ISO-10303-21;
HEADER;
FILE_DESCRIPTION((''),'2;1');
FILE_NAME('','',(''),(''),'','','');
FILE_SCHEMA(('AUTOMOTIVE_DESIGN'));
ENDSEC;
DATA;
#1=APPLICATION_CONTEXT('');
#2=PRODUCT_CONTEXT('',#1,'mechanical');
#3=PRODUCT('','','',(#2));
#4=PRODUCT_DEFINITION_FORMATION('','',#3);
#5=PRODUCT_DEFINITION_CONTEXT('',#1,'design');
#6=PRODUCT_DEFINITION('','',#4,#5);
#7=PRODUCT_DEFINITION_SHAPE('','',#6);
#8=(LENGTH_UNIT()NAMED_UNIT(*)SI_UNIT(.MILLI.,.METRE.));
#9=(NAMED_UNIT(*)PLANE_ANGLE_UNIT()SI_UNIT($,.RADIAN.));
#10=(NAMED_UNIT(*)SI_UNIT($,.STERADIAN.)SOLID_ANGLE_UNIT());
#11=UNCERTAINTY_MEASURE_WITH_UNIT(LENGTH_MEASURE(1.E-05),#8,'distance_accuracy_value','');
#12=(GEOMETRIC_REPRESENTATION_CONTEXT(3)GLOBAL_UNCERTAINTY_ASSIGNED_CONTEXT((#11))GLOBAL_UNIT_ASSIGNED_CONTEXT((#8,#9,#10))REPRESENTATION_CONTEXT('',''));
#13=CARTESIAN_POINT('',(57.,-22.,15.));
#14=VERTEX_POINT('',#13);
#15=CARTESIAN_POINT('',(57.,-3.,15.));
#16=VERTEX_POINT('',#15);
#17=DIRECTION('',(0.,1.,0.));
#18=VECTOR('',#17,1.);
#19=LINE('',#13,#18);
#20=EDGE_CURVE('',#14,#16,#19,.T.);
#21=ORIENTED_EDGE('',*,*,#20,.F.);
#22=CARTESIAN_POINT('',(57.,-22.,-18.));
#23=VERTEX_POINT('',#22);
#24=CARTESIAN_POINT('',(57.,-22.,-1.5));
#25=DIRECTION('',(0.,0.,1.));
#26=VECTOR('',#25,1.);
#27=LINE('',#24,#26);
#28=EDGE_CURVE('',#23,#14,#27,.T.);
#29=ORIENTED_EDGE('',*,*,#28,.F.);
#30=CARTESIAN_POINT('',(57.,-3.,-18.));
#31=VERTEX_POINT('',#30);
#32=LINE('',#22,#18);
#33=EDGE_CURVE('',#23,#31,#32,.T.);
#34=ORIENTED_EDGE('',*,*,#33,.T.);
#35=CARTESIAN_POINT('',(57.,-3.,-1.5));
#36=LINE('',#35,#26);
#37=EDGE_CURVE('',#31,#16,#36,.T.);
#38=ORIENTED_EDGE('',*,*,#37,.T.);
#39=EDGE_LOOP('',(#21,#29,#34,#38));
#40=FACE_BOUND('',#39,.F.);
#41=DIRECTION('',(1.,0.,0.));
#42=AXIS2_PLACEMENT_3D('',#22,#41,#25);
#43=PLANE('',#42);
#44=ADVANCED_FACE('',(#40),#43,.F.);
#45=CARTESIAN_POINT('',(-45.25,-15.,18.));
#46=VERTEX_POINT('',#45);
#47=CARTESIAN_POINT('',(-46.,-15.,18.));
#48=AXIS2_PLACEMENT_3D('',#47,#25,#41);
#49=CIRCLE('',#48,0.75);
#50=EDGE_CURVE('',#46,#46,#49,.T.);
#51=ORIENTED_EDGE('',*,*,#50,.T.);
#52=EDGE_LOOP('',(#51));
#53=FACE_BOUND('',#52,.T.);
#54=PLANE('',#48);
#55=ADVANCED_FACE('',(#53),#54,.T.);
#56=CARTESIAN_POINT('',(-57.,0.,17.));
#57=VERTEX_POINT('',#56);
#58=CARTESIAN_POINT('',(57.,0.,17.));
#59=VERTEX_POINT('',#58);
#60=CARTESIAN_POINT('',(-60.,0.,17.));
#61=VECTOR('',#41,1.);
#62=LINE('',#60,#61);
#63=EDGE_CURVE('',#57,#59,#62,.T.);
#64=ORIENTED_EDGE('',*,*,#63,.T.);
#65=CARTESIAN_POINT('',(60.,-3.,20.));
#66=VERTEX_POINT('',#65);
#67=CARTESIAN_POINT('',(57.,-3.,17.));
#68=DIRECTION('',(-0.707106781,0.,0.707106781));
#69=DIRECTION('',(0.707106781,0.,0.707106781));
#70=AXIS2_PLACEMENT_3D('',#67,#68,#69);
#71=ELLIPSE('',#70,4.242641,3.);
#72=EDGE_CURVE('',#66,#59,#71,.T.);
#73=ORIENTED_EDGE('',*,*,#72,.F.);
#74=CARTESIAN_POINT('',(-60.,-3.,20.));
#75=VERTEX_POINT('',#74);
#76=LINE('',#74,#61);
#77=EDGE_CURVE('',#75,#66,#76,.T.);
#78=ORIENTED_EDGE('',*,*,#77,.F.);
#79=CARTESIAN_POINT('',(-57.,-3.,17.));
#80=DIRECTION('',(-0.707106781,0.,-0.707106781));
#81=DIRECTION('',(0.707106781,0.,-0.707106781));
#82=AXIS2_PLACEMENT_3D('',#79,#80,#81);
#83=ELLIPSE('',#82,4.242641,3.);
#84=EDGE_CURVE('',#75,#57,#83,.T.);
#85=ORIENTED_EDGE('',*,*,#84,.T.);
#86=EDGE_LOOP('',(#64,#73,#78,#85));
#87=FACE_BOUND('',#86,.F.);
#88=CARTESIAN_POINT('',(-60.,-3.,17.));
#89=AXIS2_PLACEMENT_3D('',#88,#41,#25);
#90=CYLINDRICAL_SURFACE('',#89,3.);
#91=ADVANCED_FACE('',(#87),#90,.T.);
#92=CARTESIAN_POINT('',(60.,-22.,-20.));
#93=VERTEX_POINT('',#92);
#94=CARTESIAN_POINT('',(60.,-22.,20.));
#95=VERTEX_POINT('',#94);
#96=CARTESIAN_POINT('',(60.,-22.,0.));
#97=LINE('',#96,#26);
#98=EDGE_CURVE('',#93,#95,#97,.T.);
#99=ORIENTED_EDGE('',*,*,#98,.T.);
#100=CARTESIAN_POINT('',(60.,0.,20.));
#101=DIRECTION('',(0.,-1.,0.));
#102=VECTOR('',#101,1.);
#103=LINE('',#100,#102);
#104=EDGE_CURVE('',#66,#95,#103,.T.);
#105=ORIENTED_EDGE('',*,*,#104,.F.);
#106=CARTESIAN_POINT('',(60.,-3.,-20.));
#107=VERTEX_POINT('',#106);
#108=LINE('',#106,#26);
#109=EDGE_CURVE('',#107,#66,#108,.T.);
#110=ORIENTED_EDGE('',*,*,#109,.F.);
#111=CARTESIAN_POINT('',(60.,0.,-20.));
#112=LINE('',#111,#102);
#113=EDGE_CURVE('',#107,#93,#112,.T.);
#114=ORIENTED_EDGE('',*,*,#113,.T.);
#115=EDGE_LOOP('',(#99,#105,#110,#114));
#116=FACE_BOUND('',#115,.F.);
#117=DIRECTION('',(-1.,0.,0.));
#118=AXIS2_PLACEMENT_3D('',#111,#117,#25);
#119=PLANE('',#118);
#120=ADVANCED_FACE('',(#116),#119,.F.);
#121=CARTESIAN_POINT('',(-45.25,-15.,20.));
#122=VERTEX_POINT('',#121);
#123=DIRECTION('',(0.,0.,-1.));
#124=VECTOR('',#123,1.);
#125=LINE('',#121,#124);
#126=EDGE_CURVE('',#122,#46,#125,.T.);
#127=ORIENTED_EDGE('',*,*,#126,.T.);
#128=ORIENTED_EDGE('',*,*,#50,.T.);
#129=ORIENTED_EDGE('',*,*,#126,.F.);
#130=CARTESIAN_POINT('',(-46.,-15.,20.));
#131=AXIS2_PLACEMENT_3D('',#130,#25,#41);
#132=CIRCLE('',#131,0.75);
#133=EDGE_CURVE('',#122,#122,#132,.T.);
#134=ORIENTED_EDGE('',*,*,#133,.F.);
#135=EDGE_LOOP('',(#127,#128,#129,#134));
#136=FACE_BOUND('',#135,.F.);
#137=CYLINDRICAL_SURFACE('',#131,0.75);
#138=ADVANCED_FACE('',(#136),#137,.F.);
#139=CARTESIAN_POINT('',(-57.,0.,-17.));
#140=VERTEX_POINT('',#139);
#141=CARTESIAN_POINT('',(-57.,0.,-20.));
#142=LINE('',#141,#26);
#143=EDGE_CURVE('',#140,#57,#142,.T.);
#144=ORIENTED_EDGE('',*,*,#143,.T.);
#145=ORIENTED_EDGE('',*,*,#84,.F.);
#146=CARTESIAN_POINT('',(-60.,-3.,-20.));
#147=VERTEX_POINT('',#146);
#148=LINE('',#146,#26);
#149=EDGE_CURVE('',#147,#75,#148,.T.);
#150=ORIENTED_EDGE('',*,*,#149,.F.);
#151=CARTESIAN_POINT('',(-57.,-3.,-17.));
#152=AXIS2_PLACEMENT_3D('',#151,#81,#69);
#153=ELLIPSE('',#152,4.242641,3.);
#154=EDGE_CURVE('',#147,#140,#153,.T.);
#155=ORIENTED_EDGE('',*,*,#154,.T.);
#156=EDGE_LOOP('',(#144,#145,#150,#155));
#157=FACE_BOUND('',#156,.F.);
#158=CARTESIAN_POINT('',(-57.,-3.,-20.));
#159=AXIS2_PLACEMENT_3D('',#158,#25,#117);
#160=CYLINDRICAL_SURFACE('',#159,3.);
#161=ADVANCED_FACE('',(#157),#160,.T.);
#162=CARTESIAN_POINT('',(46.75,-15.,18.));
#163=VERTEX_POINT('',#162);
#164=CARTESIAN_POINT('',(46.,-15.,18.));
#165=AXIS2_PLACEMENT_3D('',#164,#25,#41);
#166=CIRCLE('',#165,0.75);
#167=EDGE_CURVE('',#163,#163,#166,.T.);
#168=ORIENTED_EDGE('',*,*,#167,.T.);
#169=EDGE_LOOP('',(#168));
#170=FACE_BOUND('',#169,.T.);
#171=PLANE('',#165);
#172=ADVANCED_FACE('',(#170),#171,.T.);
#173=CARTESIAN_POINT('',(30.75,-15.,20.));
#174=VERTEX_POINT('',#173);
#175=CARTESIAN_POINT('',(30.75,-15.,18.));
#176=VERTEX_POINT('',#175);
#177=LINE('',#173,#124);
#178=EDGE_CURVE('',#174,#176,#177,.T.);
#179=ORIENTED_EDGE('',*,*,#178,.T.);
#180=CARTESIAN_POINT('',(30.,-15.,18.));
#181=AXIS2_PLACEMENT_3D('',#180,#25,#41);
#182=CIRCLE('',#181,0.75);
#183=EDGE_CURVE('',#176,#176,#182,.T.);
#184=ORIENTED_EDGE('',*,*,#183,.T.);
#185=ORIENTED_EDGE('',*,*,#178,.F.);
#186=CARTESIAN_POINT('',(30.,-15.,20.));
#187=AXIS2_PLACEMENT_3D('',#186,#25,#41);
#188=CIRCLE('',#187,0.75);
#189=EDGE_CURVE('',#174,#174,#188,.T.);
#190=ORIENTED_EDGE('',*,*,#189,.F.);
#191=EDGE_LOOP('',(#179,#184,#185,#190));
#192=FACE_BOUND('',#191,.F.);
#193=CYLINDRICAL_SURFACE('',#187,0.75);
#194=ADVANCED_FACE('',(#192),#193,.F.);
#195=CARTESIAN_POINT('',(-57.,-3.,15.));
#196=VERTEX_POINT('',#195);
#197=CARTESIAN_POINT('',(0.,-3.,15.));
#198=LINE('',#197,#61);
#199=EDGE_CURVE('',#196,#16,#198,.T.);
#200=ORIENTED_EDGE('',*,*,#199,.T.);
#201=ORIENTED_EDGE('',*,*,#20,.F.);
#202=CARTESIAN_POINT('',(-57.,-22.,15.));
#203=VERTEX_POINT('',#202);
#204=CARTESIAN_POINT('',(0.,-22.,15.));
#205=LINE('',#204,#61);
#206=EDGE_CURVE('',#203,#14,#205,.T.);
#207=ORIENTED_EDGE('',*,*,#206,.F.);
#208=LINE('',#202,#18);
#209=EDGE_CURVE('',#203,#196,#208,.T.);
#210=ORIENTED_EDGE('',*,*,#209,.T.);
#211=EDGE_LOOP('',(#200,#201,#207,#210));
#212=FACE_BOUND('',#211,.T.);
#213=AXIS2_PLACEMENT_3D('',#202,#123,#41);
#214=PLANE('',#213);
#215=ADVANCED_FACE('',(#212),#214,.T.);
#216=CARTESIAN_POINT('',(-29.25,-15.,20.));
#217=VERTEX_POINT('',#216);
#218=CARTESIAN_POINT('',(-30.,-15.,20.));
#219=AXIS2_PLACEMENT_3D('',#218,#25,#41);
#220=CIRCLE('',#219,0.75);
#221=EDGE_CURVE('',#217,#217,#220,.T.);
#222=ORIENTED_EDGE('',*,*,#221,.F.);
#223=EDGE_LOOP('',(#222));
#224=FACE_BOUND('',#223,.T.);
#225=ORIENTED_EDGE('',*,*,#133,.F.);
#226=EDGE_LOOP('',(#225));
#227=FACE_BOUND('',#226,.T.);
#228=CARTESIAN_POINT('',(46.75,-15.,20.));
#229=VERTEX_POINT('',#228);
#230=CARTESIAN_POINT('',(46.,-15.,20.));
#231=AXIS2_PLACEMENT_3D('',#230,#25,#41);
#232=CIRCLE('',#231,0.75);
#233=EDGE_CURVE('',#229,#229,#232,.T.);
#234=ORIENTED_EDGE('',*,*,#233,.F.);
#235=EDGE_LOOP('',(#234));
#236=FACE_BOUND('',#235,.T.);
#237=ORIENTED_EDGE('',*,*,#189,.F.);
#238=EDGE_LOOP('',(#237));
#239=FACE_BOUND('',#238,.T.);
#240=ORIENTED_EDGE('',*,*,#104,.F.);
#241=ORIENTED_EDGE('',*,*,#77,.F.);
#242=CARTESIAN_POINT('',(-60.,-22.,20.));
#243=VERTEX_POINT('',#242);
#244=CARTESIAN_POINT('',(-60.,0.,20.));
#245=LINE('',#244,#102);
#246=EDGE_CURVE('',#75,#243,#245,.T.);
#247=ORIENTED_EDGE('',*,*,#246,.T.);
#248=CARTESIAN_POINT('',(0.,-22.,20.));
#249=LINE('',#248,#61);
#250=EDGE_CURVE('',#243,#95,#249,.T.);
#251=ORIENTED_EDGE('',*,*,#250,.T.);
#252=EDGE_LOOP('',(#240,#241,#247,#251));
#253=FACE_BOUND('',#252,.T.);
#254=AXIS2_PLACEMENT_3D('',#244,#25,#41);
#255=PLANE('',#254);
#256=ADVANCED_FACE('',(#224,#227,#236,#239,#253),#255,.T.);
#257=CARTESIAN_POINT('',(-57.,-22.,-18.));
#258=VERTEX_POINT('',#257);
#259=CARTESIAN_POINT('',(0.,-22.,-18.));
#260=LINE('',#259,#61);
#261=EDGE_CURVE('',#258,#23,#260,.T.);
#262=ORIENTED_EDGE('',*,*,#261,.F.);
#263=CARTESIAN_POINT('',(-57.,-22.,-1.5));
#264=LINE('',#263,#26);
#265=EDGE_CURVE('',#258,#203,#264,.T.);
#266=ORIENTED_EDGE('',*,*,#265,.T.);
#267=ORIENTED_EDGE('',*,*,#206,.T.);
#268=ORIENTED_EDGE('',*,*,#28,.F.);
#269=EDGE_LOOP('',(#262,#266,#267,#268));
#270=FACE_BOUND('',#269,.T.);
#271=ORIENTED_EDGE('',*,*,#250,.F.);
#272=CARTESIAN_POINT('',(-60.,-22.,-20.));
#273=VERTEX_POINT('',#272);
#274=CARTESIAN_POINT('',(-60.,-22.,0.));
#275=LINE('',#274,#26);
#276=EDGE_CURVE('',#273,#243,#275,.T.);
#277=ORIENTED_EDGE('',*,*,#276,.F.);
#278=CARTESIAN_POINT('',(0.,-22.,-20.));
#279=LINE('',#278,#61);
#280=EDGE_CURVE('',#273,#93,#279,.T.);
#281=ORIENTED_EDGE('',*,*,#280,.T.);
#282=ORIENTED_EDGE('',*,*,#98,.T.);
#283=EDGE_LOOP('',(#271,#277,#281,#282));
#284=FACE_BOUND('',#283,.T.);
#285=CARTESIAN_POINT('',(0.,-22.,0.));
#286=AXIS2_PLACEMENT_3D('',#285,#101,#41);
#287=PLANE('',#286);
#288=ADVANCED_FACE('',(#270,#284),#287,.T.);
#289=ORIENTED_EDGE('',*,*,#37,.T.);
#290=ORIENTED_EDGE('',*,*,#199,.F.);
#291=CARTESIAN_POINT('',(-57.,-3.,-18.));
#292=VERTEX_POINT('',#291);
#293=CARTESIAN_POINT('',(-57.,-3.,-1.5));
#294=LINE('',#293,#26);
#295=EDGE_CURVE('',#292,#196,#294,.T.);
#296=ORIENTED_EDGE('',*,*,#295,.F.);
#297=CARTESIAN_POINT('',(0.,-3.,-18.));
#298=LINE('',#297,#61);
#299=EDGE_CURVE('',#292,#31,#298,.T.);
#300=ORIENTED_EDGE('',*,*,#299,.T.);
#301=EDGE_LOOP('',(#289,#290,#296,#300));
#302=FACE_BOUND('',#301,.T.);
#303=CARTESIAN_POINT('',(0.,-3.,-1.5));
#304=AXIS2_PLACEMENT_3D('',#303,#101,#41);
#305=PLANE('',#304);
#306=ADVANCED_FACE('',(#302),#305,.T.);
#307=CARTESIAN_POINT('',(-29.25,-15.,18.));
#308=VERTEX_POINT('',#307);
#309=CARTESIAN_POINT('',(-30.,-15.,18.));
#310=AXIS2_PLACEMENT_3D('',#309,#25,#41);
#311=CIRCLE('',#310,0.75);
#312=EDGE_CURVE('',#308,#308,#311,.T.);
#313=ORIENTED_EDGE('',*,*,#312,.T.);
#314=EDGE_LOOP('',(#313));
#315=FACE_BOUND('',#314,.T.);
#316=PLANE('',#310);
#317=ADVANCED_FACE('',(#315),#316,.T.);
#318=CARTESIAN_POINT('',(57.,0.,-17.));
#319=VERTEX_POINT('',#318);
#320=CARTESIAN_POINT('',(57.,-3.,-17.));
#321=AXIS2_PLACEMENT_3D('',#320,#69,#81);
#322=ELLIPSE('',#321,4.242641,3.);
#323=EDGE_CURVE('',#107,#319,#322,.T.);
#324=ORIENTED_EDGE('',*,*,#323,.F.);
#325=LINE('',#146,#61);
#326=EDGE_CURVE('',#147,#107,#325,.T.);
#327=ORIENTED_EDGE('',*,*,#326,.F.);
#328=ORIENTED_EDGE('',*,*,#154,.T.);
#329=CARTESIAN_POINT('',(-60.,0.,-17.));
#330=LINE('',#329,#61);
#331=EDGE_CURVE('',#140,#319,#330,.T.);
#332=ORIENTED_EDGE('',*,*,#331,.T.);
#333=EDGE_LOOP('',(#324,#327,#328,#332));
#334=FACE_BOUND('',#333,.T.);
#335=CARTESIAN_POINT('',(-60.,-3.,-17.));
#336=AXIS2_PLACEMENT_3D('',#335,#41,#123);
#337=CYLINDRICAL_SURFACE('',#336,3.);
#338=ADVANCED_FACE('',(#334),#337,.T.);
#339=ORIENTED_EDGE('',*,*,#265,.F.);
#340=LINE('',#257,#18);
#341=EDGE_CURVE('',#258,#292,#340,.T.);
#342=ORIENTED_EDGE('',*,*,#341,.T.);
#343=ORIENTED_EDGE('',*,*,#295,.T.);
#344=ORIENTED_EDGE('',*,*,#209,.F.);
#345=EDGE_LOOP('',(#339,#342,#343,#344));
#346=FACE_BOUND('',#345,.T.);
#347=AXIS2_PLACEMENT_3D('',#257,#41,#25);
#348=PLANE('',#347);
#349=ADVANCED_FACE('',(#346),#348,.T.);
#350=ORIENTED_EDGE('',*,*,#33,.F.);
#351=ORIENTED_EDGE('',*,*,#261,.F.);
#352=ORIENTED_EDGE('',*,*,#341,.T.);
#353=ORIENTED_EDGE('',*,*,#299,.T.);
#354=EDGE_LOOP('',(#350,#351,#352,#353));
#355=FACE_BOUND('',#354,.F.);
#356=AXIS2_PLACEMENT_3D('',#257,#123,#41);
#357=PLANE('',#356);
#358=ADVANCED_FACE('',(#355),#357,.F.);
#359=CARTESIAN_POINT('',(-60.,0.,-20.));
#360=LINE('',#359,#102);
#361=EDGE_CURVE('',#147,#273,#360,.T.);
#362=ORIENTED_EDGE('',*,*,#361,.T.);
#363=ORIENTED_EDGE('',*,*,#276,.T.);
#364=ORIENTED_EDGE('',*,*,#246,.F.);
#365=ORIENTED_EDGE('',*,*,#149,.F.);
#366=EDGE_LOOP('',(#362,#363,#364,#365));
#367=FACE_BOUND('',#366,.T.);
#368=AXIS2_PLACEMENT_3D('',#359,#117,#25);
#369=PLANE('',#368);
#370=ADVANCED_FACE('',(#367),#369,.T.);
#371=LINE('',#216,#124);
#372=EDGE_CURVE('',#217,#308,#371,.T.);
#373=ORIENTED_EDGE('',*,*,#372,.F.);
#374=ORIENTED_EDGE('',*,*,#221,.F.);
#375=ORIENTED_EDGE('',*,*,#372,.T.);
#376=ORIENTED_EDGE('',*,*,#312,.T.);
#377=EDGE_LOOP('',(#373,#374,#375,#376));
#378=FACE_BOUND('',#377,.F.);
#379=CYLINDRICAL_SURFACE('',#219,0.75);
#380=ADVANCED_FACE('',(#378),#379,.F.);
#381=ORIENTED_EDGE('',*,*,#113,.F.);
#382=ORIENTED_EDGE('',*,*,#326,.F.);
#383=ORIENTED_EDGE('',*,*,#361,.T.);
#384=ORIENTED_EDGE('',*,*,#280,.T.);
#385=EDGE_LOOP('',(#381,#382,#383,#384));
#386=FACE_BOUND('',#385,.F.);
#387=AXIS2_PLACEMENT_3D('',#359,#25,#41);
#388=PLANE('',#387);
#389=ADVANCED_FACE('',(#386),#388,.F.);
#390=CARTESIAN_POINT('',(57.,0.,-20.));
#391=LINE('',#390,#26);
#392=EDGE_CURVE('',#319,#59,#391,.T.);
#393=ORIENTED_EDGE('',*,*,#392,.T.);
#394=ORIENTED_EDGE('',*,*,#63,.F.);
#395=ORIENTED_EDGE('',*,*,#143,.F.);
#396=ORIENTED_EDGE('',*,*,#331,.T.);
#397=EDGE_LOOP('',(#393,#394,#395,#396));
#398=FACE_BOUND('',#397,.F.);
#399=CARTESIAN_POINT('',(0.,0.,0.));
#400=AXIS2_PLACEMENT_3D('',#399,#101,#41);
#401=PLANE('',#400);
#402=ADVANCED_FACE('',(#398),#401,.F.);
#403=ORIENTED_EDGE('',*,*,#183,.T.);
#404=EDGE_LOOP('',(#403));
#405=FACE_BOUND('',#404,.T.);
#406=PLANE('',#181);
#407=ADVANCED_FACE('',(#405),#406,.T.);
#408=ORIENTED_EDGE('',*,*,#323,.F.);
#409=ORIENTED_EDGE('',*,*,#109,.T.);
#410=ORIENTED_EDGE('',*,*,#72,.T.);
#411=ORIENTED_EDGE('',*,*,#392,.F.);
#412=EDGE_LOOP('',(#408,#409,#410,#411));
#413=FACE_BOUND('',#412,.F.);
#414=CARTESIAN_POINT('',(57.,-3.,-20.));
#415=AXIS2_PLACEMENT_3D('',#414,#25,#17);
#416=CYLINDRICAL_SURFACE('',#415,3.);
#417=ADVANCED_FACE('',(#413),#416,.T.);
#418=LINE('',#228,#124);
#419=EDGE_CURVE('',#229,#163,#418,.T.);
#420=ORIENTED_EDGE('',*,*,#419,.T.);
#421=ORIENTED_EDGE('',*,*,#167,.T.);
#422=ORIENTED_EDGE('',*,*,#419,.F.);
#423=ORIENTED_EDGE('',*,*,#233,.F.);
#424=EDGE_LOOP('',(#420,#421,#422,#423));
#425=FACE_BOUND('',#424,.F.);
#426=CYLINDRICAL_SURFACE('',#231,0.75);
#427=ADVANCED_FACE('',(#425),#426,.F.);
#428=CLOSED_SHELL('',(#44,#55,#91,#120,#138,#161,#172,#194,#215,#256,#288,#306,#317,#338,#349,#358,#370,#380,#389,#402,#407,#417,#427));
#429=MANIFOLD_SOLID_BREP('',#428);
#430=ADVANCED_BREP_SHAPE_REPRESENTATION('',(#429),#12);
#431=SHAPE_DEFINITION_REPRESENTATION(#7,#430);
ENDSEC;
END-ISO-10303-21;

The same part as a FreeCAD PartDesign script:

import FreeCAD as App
import Part
import Sketcher
from FreeCAD import Vector
Q = App.Units.Quantity


def edges_at(feature, points):
    """Names of the edges that pass closest to the given points."""
    edges = feature.Shape.Edges
    near = lambda p: min(range(len(edges)), key=lambda i: edges[i].distToShape(Part.Vertex(*p))[0])
    return sorted({f"Edge{near(p) + 1}" for p in points})

doc = App.newDocument("Part")
body = doc.addObject("PartDesign::Body", "Body")

# Sketch on XZ plane
sketch1 = doc.addObject("Sketcher::SketchObject", "Sketch")
body.addObject(sketch1)
sketch1.AttachmentSupport = (doc.XZ_Plane, [""])
sketch1.MapMode = "FlatFace"
sketch1.addGeometry([
    Part.LineSegment(Vector(-60, 20, 0), Vector(-60, -20, 0)),
    Part.LineSegment(Vector(-60, -20, 0), Vector(60, -20, 0)),
    Part.LineSegment(Vector(60, -20, 0), Vector(60, 20, 0)),
    Part.LineSegment(Vector(60, 20, 0), Vector(-60, 20, 0)),
], False)
sketch1.addConstraint([
    Sketcher.Constraint("Coincident", 0, 2, 1, 1),
    Sketcher.Constraint("Coincident", 1, 2, 2, 1),
    Sketcher.Constraint("Coincident", 2, 2, 3, 1),
    Sketcher.Constraint("Coincident", 3, 2, 0, 1),
    Sketcher.Constraint("Vertical", 0),
    Sketcher.Constraint("Horizontal", 1),
    Sketcher.Constraint("Vertical", 2),
    Sketcher.Constraint("Horizontal", 3),
    Sketcher.Constraint("Symmetric", 0, 2, 2, 2, -1, 1),
    Sketcher.Constraint("DistanceX", 1, 1, 1, 2, Q("120 mm")),
    Sketcher.Constraint("DistanceY", 0, 2, 0, 1, Q("40 mm")),
])
pad1 = doc.addObject("PartDesign::Pad", "Pad")
body.addObject(pad1)
pad1.Profile = sketch1
pad1.Length = 22

# Sketch on XZ plane
sketch2 = doc.addObject("Sketcher::SketchObject", "Sketch001")
body.addObject(sketch2)
sketch2.AttachmentSupport = (doc.XZ_Plane, [""])
sketch2.MapMode = "FlatFace"
sketch2.AttachmentOffset = App.Placement(Vector(0, 0, 22), App.Rotation())
sketch2.addGeometry([
    Part.LineSegment(Vector(-57, 15, 0), Vector(-57, -18, 0)),
    Part.LineSegment(Vector(-57, -18, 0), Vector(57, -18, 0)),
    Part.LineSegment(Vector(57, -18, 0), Vector(57, 15, 0)),
    Part.LineSegment(Vector(57, 15, 0), Vector(-57, 15, 0)),
], False)
sketch2.addConstraint([
    Sketcher.Constraint("Coincident", 0, 2, 1, 1),
    Sketcher.Constraint("Coincident", 1, 2, 2, 1),
    Sketcher.Constraint("Coincident", 2, 2, 3, 1),
    Sketcher.Constraint("Coincident", 3, 2, 0, 1),
    Sketcher.Constraint("Vertical", 0),
    Sketcher.Constraint("Horizontal", 1),
    Sketcher.Constraint("Vertical", 2),
    Sketcher.Constraint("Horizontal", 3),
    Sketcher.Constraint("DistanceX", 1, 1, 1, 2, Q("114 mm")),
    Sketcher.Constraint("DistanceY", 0, 2, 0, 1, Q("33 mm")),
    Sketcher.Constraint("DistanceX", 0, 2, -1, 1, Q("57 mm")),
    Sketcher.Constraint("DistanceY", 0, 2, -1, 1, Q("18 mm")),
])
pocket1 = doc.addObject("PartDesign::Pocket", "Pocket")
body.addObject(pocket1)
pocket1.Profile = sketch2
pocket1.Length = 19
doc.recompute()

fillet = doc.addObject("PartDesign::Fillet", "Fillet")
body.addObject(fillet)
fillet.Base = (pocket1, edges_at(pocket1, [
    (0, 0, 20),
    (-60, 0, 0),
    (0, 0, -20),
    (60, 0, 0),
]))
fillet.Radius = 3

# Sketch on XY plane
sketch3 = doc.addObject("Sketcher::SketchObject", "Sketch002")
body.addObject(sketch3)
sketch3.AttachmentSupport = (doc.XY_Plane, [""])
sketch3.MapMode = "FlatFace"
sketch3.AttachmentOffset = App.Placement(Vector(0, 0, 20), App.Rotation())
sketch3.addGeometry([
    Part.Circle(Vector(-46, -15, 0), Vector(0, 0, 1), 0.75),
    Part.Circle(Vector(-30, -15, 0), Vector(0, 0, 1), 0.75),
    Part.Circle(Vector(30, -15, 0), Vector(0, 0, 1), 0.75),
    Part.Circle(Vector(46, -15, 0), Vector(0, 0, 1), 0.75),
], False)
sketch3.addConstraint([
    Sketcher.Constraint("Equal", 0, 1),
    Sketcher.Constraint("Equal", 1, 2),
    Sketcher.Constraint("Equal", 2, 3),
    Sketcher.Constraint("Symmetric", 1, 3, 2, 3, -2),
    Sketcher.Constraint("Symmetric", 0, 3, 3, 3, -2),
    Sketcher.Constraint("Horizontal", 0, 3, 1, 3),
    Sketcher.Constraint("Diameter", 0, Q("1.5 mm")),
    Sketcher.Constraint("DistanceX", 0, 3, -1, 1, Q("46 mm")),
    Sketcher.Constraint("DistanceY", 0, 3, -1, 1, Q("15 mm")),
    Sketcher.Constraint("DistanceX", 1, 3, -1, 1, Q("30 mm")),
])
pocket2 = doc.addObject("PartDesign::Pocket", "Pocket001")
body.addObject(pocket2)
pocket2.Profile = sketch3
pocket2.Length = 2

doc.recompute()
